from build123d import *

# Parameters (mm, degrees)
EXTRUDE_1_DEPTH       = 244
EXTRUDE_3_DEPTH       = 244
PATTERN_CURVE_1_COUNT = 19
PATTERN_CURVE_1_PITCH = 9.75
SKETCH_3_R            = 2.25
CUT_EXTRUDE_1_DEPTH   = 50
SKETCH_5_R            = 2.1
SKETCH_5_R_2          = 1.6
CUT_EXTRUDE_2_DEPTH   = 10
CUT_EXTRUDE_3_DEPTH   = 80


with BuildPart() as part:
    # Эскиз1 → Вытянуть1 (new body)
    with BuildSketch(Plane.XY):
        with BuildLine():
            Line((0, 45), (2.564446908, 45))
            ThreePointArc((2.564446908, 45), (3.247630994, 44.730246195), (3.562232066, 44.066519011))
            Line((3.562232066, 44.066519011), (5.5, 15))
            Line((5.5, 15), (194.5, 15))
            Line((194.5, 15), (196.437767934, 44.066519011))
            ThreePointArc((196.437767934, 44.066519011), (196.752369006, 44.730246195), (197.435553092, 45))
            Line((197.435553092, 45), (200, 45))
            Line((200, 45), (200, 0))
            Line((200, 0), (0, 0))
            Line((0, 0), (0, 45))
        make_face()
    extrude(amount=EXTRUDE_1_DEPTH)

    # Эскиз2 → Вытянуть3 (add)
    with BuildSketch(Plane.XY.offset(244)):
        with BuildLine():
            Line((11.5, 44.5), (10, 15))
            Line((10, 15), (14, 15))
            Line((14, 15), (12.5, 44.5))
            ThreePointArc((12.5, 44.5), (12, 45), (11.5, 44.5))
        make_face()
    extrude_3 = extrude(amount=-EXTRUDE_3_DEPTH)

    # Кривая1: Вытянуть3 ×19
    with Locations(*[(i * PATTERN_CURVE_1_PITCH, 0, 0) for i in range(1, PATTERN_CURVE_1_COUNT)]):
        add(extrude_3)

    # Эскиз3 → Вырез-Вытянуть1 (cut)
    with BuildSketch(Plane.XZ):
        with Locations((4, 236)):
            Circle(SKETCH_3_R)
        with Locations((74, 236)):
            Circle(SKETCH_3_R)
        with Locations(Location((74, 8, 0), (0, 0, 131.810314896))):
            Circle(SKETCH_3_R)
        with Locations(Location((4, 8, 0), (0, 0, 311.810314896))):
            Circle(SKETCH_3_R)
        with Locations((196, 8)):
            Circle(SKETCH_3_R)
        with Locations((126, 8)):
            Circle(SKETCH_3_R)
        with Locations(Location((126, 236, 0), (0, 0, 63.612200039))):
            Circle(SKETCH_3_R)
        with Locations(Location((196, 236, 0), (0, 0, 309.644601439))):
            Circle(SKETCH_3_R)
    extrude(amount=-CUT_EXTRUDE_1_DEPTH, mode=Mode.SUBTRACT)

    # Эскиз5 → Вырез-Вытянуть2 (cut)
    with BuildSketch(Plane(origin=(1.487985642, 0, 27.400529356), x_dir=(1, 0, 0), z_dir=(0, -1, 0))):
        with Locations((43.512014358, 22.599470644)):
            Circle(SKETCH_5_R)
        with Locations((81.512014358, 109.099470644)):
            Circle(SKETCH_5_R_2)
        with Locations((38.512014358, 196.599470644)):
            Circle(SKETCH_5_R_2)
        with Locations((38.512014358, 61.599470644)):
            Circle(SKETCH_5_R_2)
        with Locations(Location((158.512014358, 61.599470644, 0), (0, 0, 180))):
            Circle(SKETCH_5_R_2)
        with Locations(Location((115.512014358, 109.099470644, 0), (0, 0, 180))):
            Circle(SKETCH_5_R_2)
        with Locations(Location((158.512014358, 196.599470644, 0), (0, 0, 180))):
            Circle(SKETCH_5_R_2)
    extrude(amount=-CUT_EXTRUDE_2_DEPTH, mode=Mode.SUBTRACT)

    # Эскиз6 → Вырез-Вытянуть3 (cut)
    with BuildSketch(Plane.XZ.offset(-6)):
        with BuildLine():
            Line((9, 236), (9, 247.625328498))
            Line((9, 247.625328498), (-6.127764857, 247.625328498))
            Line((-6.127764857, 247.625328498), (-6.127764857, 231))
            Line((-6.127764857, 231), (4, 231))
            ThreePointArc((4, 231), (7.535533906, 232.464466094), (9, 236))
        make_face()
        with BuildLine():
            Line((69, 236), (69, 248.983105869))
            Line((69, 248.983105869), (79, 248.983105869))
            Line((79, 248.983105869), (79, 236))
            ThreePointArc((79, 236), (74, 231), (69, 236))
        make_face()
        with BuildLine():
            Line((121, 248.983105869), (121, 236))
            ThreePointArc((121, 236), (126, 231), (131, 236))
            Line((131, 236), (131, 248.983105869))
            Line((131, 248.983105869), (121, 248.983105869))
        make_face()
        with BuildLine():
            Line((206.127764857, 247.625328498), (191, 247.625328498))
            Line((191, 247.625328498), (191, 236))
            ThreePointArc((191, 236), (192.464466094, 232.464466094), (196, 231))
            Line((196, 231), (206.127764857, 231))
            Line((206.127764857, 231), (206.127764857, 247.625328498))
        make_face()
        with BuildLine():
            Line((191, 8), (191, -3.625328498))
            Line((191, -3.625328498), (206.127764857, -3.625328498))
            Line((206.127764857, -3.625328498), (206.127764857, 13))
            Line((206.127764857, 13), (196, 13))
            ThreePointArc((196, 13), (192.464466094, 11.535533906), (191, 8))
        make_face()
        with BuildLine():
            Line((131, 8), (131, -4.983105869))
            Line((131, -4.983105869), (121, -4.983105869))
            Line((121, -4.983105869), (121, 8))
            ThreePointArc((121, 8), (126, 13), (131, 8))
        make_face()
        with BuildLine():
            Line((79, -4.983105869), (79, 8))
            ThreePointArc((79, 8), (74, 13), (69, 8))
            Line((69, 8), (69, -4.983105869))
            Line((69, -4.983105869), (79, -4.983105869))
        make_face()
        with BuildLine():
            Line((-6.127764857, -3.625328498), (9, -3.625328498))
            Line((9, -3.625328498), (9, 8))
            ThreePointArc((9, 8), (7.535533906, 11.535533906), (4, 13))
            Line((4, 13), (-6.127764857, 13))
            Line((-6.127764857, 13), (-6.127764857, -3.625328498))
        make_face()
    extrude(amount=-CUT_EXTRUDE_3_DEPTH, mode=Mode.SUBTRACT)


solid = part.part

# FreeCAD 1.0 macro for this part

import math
import FreeCAD as App
import Part
import Sketcher

V = App.Vector

doc = App.newDocument("Part")
body = doc.addObject("PartDesign::Body", "Body")

# Sketch on XY plane
sketch1 = doc.addObject("Sketcher::SketchObject", "Sketch")
body.addObject(sketch1)
sketch1.AttachmentSupport = (doc.XY_Plane, [""])
sketch1.MapMode = "FlatFace"
sketch1.addGeometry([
    Part.LineSegment(V(2.6, 45, 0), V(0, 45, 0)),  # 0
    Part.LineSegment(V(0, 45, 0), V(0, 0, 0)),  # 1
    Part.LineSegment(V(0, 0, 0), V(200, 0, 0)),  # 2
    Part.LineSegment(V(200, 0, 0), V(200, 45, 0)),  # 3
    Part.LineSegment(V(200, 45, 0), V(197.4, 45, 0)),  # 4
    Part.ArcOfCircle(Part.Circle(V(197.4, 44, 0), V(0, 0, 1), 1), math.radians(90), math.radians(176)),  # 5
    Part.LineSegment(V(196.4, 44.1, 0), V(194.5, 15, 0)),  # 6
    Part.LineSegment(V(194.5, 15, 0), V(5.5, 15, 0)),  # 7
    Part.LineSegment(V(5.5, 15, 0), V(3.6, 44.1, 0)),  # 8
    Part.ArcOfCircle(Part.Circle(V(2.6, 44, 0), V(0, 0, 1), 1), math.radians(4), math.radians(90)),  # 9
], False)
sketch1.addConstraint([
    Sketcher.Constraint("Coincident", 0, 2, 1, 1),
    Sketcher.Constraint("Coincident", 1, 2, 2, 1),
    Sketcher.Constraint("Coincident", 2, 2, 3, 1),
    Sketcher.Constraint("Coincident", 3, 2, 4, 1),
    Sketcher.Constraint("Tangent", 4, 2, 5, 1),
    Sketcher.Constraint("Tangent", 5, 2, 6, 1),
    Sketcher.Constraint("Coincident", 6, 2, 7, 1),
    Sketcher.Constraint("Coincident", 7, 2, 8, 1),
    Sketcher.Constraint("Tangent", 8, 2, 9, 1),
    Sketcher.Constraint("Tangent", 9, 2, 0, 1),
    Sketcher.Constraint("Horizontal", 0),
    Sketcher.Constraint("Vertical", 1),
    Sketcher.Constraint("Horizontal", 2),
    Sketcher.Constraint("Vertical", 3),
    Sketcher.Constraint("Horizontal", 4),
    Sketcher.Constraint("Horizontal", 7),
    Sketcher.Constraint("Coincident", 1, 2, -1, 1),
    Sketcher.Constraint("Equal", 5, 9),
    Sketcher.Constraint("Horizontal", 5, 3, 9, 3),
    Sketcher.Constraint("Horizontal", 5, 2, 8, 2),
    Sketcher.Constraint("Equal", 0, 4),
    Sketcher.Constraint("Radius", 5, 1.0),
    Sketcher.Constraint("DistanceX", 2, 1, 2, 2, 200.0),
    Sketcher.Constraint("DistanceX", 7, 2, 7, 1, 189.0),
    Sketcher.Constraint("DistanceY", 1, 2, 1, 1, 45.0),
    Sketcher.Constraint("DistanceY", -1, 1, 6, 2, 15.0),
    Sketcher.Constraint("Distance", 6, 29.13104),
])
pad1 = doc.addObject("PartDesign::Pad", "Pad")
body.addObject(pad1)
pad1.Profile = sketch1
pad1.Length = 244

# Sketch on XY plane
sketch2 = doc.addObject("Sketcher::SketchObject", "Sketch001")
body.addObject(sketch2)
sketch2.AttachmentSupport = (doc.XY_Plane, [""])
sketch2.MapMode = "FlatFace"
sketch2.AttachmentOffset = App.Placement(V(0, 0, 244), App.Rotation())
sketch2.addGeometry([
    Part.LineSegment(V(11.5, 44.5, 0), V(10, 15, 0)),
    Part.LineSegment(V(10, 15, 0), V(14, 15, 0)),
    Part.LineSegment(V(14, 15, 0), V(12.5, 44.5, 0)),
    Part.ArcOfCircle(Part.Circle(V(12, 44.5, 0), V(0, 0, 1), 0.5), math.radians(0), math.radians(180)),
], False)
sketch2.addConstraint([
    Sketcher.Constraint("Coincident", 0, 2, 1, 1),
    Sketcher.Constraint("Coincident", 1, 2, 2, 1),
    Sketcher.Constraint("Coincident", 2, 2, 3, 1),
    Sketcher.Constraint("Coincident", 3, 2, 0, 1),
    Sketcher.Constraint("Horizontal", 1),
    Sketcher.Constraint("Horizontal", 3, 3, 2, 2),
    Sketcher.Constraint("Horizontal", 2, 2, 3, 2),
    Sketcher.Constraint("Equal", 0, 2),
    Sketcher.Constraint("Radius", 3, 0.5),
    Sketcher.Constraint("DistanceX", 1, 1, 1, 2, 4.0),
    Sketcher.Constraint("DistanceX", -1, 1, 3, 3, 12.0),
    Sketcher.Constraint("DistanceY", -1, 1, 0, 2, 15.0),
    Sketcher.Constraint("DistanceY", -1, 1, 3, 3, 44.5),
])
pad2 = doc.addObject("PartDesign::Pad", "Pad001")
body.addObject(pad2)
pad2.Profile = sketch2
pad2.Length = 244
pad2.Reversed = True
doc.recompute()

linearpattern = doc.addObject("PartDesign::LinearPattern", "LinearPattern")
body.addObject(linearpattern)
linearpattern.Originals = [pad2]
linearpattern.Direction = (doc.X_Axis, [""])
linearpattern.Mode = "offset"
linearpattern.Offset = 9.75
linearpattern.Occurrences = 19
body.Tip = linearpattern

# Sketch on XZ plane
sketch3 = doc.addObject("Sketcher::SketchObject", "Sketch002")
body.addObject(sketch3)
sketch3.AttachmentSupport = (doc.XZ_Plane, [""])
sketch3.MapMode = "FlatFace"
sketch3.addGeometry([
    Part.Circle(V(4, 236, 0), V(0, 0, 1), 2.2),  # 0
    Part.Circle(V(74, 236, 0), V(0, 0, 1), 2.2),  # 1
    Part.Circle(V(74, 8, 0), V(0, 0, 1), 2.2),  # 2
    Part.Circle(V(4, 8, 0), V(0, 0, 1), 2.2),  # 3
    Part.Circle(V(196, 8, 0), V(0, 0, 1), 2.2),  # 4
    Part.Circle(V(126, 8, 0), V(0, 0, 1), 2.2),  # 5
    Part.Circle(V(126, 236, 0), V(0, 0, 1), 2.2),  # 6
    Part.Circle(V(196, 236, 0), V(0, 0, 1), 2.2),  # 7
], False)
sketch3.addConstraint([
    Sketcher.Constraint("Equal", 0, 1),
    Sketcher.Constraint("Equal", 1, 2),
    Sketcher.Constraint("Equal", 2, 3),
    Sketcher.Constraint("Equal", 3, 4),
    Sketcher.Constraint("Equal", 4, 5),
    Sketcher.Constraint("Equal", 5, 6),
    Sketcher.Constraint("Equal", 6, 7),
    Sketcher.Constraint("Horizontal", 0, 3, 1, 3),
    Sketcher.Constraint("Horizontal", 2, 3, 3, 3),
    Sketcher.Constraint("Horizontal", 3, 3, 4, 3),
    Sketcher.Constraint("Horizontal", 4, 3, 5, 3),
    Sketcher.Constraint("Horizontal", 1, 3, 6, 3),
    Sketcher.Constraint("Horizontal", 6, 3, 7, 3),
    Sketcher.Constraint("Vertical", 1, 3, 2, 3),
    Sketcher.Constraint("Vertical", 0, 3, 3, 3),
    Sketcher.Constraint("Vertical", 5, 3, 6, 3),
    Sketcher.Constraint("Vertical", 4, 3, 7, 3),
    Sketcher.Constraint("Diameter", 0, 4.5),
    Sketcher.Constraint("DistanceX", -1, 1, 0, 3, 4.0),
    Sketcher.Constraint("DistanceY", -1, 1, 0, 3, 236.0),
    Sketcher.Constraint("DistanceX", -1, 1, 1, 3, 74.0),
    Sketcher.Constraint("DistanceY", -1, 1, 2, 3, 8.0),
    Sketcher.Constraint("DistanceX", -1, 1, 4, 3, 196.0),
    Sketcher.Constraint("DistanceX", -1, 1, 5, 3, 126.0),
])
pocket1 = doc.addObject("PartDesign::Pocket", "Pocket")
body.addObject(pocket1)
pocket1.Profile = sketch3
pocket1.Length = 50

# Sketch on XZ plane
sketch4 = doc.addObject("Sketcher::SketchObject", "Sketch003")
body.addObject(sketch4)
sketch4.AttachmentSupport = (doc.XZ_Plane, [""])
sketch4.MapMode = "FlatFace"
sketch4.addGeometry([
    Part.Circle(V(45, 50, 0), V(0, 0, 1), 2.1),  # 0
    Part.Circle(V(83, 136.5, 0), V(0, 0, 1), 1.6),  # 1
    Part.Circle(V(40, 224, 0), V(0, 0, 1), 1.6),  # 2
    Part.Circle(V(40, 89, 0), V(0, 0, 1), 1.6),  # 3
    Part.Circle(V(160, 89, 0), V(0, 0, 1), 1.6),  # 4
    Part.Circle(V(117, 136.5, 0), V(0, 0, 1), 1.6),  # 5
    Part.Circle(V(160, 224, 0), V(0, 0, 1), 1.6),  # 6
], False)
sketch4.addConstraint([
    Sketcher.Constraint("Equal", 1, 2),
    Sketcher.Constraint("Equal", 2, 3),
    Sketcher.Constraint("Equal", 3, 4),
    Sketcher.Constraint("Equal", 4, 5),
    Sketcher.Constraint("Equal", 5, 6),
    Sketcher.Constraint("Horizontal", 3, 3, 4, 3),
    Sketcher.Constraint("Horizontal", 1, 3, 5, 3),
    Sketcher.Constraint("Horizontal", 2, 3, 6, 3),
    Sketcher.Constraint("Vertical", 2, 3, 3, 3),
    Sketcher.Constraint("Vertical", 4, 3, 6, 3),
    Sketcher.Constraint("Diameter", 0, 4.2),
    Sketcher.Constraint("Diameter", 1, 3.2),
    Sketcher.Constraint("DistanceX", -1, 1, 0, 3, 45.0),
    Sketcher.Constraint("DistanceY", -1, 1, 0, 3, 50.0),
    Sketcher.Constraint("DistanceX", -1, 1, 1, 3, 83.0),
    Sketcher.Constraint("DistanceX", -1, 1, 2, 3, 40.0),
    Sketcher.Constraint("DistanceY", -1, 1, 2, 3, 224.0),
    Sketcher.Constraint("DistanceY", -1, 1, 3, 3, 89.0),
    Sketcher.Constraint("DistanceX", -1, 1, 4, 3, 160.0),
    Sketcher.Constraint("DistanceX", -1, 1, 5, 3, 117.0),
    Sketcher.Constraint("DistanceY", -1, 1, 1, 3, 136.5),
])
pocket2 = doc.addObject("PartDesign::Pocket", "Pocket001")
body.addObject(pocket2)
pocket2.Profile = sketch4
pocket2.Length = 10

# Sketch on XZ plane
sketch5 = doc.addObject("Sketcher::SketchObject", "Sketch004")
body.addObject(sketch5)
sketch5.AttachmentSupport = (doc.XZ_Plane, [""])
sketch5.MapMode = "FlatFace"
sketch5.AttachmentOffset = App.Placement(V(0, 0, -6), App.Rotation())
sketch5.addGeometry([
    Part.LineSegment(V(9, 236, 0), V(9, 248, 0)),  # 0
    Part.LineSegment(V(9, 248, 0), V(-6, 248, 0)),  # 1
    Part.LineSegment(V(-6, 248, 0), V(-6, 231, 0)),  # 2
    Part.LineSegment(V(-6, 231, 0), V(4, 231, 0)),  # 3
    Part.ArcOfCircle(Part.Circle(V(4, 236, 0), V(0, 0, 1), 5), math.radians(-90), math.radians(0)),  # 4
    Part.LineSegment(V(69, 249, 0), V(69, 236, 0)),  # 5
    Part.ArcOfCircle(Part.Circle(V(74, 236, 0), V(0, 0, 1), 5), math.radians(180), math.radians(360)),  # 6
    Part.LineSegment(V(79, 236, 0), V(79, 249, 0)),  # 7
    Part.LineSegment(V(79, 249, 0), V(69, 249, 0)),  # 8
    Part.LineSegment(V(121, 249, 0), V(121, 236, 0)),  # 9
    Part.ArcOfCircle(Part.Circle(V(126, 236, 0), V(0, 0, 1), 5), math.radians(180), math.radians(360)),  # 10
    Part.LineSegment(V(131, 236, 0), V(131, 249, 0)),  # 11
    Part.LineSegment(V(131, 249, 0), V(121, 249, 0)),  # 12
    Part.LineSegment(V(206, 248, 0), V(191, 248, 0)),  # 13
    Part.LineSegment(V(191, 248, 0), V(191, 236, 0)),  # 14
    Part.ArcOfCircle(Part.Circle(V(196, 236, 0), V(0, 0, 1), 5), math.radians(180), math.radians(270)),  # 15
    Part.LineSegment(V(196, 231, 0), V(206, 231, 0)),  # 16
    Part.LineSegment(V(206, 231, 0), V(206, 248, 0)),  # 17
    Part.LineSegment(V(191, 8, 0), V(191, -4, 0)),  # 18
    Part.LineSegment(V(191, -4, 0), V(206, -4, 0)),  # 19
    Part.LineSegment(V(206, -4, 0), V(206, 13, 0)),  # 20
    Part.LineSegment(V(206, 13, 0), V(196, 13, 0)),  # 21
    Part.ArcOfCircle(Part.Circle(V(196, 8, 0), V(0, 0, 1), 5), math.radians(90), math.radians(180)),  # 22
    Part.LineSegment(V(131, -5, 0), V(131, 8, 0)),  # 23
    Part.ArcOfCircle(Part.Circle(V(126, 8, 0), V(0, 0, 1), 5), math.radians(0), math.radians(180)),  # 24
    Part.LineSegment(V(121, 8, 0), V(121, -5, 0)),  # 25
    Part.LineSegment(V(121, -5, 0), V(131, -5, 0)),  # 26
    Part.LineSegment(V(79, -5, 0), V(79, 8, 0)),  # 27
    Part.ArcOfCircle(Part.Circle(V(74, 8, 0), V(0, 0, 1), 5), math.radians(0), math.radians(180)),  # 28
    Part.LineSegment(V(69, 8, 0), V(69, -5, 0)),  # 29
    Part.LineSegment(V(69, -5, 0), V(79, -5, 0)),  # 30
    Part.LineSegment(V(-6, -4, 0), V(9, -4, 0)),  # 31
    Part.LineSegment(V(9, -4, 0), V(9, 8, 0)),  # 32
    Part.ArcOfCircle(Part.Circle(V(4, 8, 0), V(0, 0, 1), 5), math.radians(0), math.radians(90)),  # 33
    Part.LineSegment(V(4, 13, 0), V(-6, 13, 0)),  # 34
    Part.LineSegment(V(-6, 13, 0), V(-6, -4, 0)),  # 35
], False)
sketch5.addConstraint([
    Sketcher.Constraint("Coincident", 0, 2, 1, 1),
    Sketcher.Constraint("Coincident", 1, 2, 2, 1),
    Sketcher.Constraint("Coincident", 2, 2, 3, 1),
    Sketcher.Constraint("Tangent", 3, 2, 4, 1),
    Sketcher.Constraint("Tangent", 4, 2, 0, 1),
    Sketcher.Constraint("Tangent", 5, 2, 6, 1),
    Sketcher.Constraint("Tangent", 6, 2, 7, 1),
    Sketcher.Constraint("Coincident", 7, 2, 8, 1),
    Sketcher.Constraint("Coincident", 8, 2, 5, 1),
    Sketcher.Constraint("Tangent", 9, 2, 10, 1),
    Sketcher.Constraint("Tangent", 10, 2, 11, 1),
    Sketcher.Constraint("Coincident", 11, 2, 12, 1),
    Sketcher.Constraint("Coincident", 12, 2, 9, 1),
    Sketcher.Constraint("Coincident", 13, 2, 14, 1),
    Sketcher.Constraint("Tangent", 14, 2, 15, 1),
    Sketcher.Constraint("Tangent", 15, 2, 16, 1),
    Sketcher.Constraint("Coincident", 16, 2, 17, 1),
    Sketcher.Constraint("Coincident", 17, 2, 13, 1),
    Sketcher.Constraint("Coincident", 18, 2, 19, 1),
    Sketcher.Constraint("Coincident", 19, 2, 20, 1),
    Sketcher.Constraint("Coincident", 20, 2, 21, 1),
    Sketcher.Constraint("Tangent", 21, 2, 22, 1),
    Sketcher.Constraint("Tangent", 22, 2, 18, 1),
    Sketcher.Constraint("Tangent", 23, 2, 24, 1),
    Sketcher.Constraint("Tangent", 24, 2, 25, 1),
    Sketcher.Constraint("Coincident", 25, 2, 26, 1),
    Sketcher.Constraint("Coincident", 26, 2, 23, 1),
    Sketcher.Constraint("Tangent", 27, 2, 28, 1),
    Sketcher.Constraint("Tangent", 28, 2, 29, 1),
    Sketcher.Constraint("Coincident", 29, 2, 30, 1),
    Sketcher.Constraint("Coincident", 30, 2, 27, 1),
    Sketcher.Constraint("Coincident", 31, 2, 32, 1),
    Sketcher.Constraint("Tangent", 32, 2, 33, 1),
    Sketcher.Constraint("Tangent", 33, 2, 34, 1),
    Sketcher.Constraint("Coincident", 34, 2, 35, 1),
    Sketcher.Constraint("Coincident", 35, 2, 31, 1),
    Sketcher.Constraint("Vertical", 0),
    Sketcher.Constraint("Horizontal", 1),
    Sketcher.Constraint("Vertical", 2),
    Sketcher.Constraint("Horizontal", 3),
    Sketcher.Constraint("Vertical", 5),
    Sketcher.Constraint("Vertical", 7),
    Sketcher.Constraint("Horizontal", 8),
    Sketcher.Constraint("Vertical", 9),
    Sketcher.Constraint("Vertical", 11),
    Sketcher.Constraint("Horizontal", 12),
    Sketcher.Constraint("Horizontal", 13),
    Sketcher.Constraint("Vertical", 14),
    Sketcher.Constraint("Horizontal", 16),
    Sketcher.Constraint("Vertical", 17),
    Sketcher.Constraint("Vertical", 18),
    Sketcher.Constraint("Horizontal", 19),
    Sketcher.Constraint("Vertical", 20),
    Sketcher.Constraint("Horizontal", 21),
    Sketcher.Constraint("Vertical", 23),
    Sketcher.Constraint("Vertical", 25),
    Sketcher.Constraint("Horizontal", 26),
    Sketcher.Constraint("Vertical", 27),
    Sketcher.Constraint("Vertical", 29),
    Sketcher.Constraint("Horizontal", 30),
    Sketcher.Constraint("Horizontal", 31),
    Sketcher.Constraint("Vertical", 32),
    Sketcher.Constraint("Horizontal", 34),
    Sketcher.Constraint("Vertical", 35),
    Sketcher.Constraint("Equal", 4, 6),
    Sketcher.Constraint("Equal", 6, 10),
    Sketcher.Constraint("Equal", 10, 15),
    Sketcher.Constraint("Equal", 15, 22),
    Sketcher.Constraint("Equal", 22, 24),
    Sketcher.Constraint("Equal", 24, 28),
    Sketcher.Constraint("Equal", 28, 33),
    Sketcher.Constraint("Horizontal", 4, 3, 6, 3),
    Sketcher.Constraint("Horizontal", 6, 3, 10, 3),
    Sketcher.Constraint("Horizontal", 10, 3, 15, 3),
    Sketcher.Constraint("Horizontal", 22, 3, 24, 3),
    Sketcher.Constraint("Horizontal", 24, 3, 28, 3),
    Sketcher.Constraint("Horizontal", 28, 3, 33, 3),
    Sketcher.Constraint("Horizontal", 8, 2, 11, 2),
    Sketcher.Constraint("Horizontal", 1, 2, 13, 2),
    Sketcher.Constraint("Horizontal", 26, 2, 29, 2),
    Sketcher.Constraint("Horizontal", 19, 2, 31, 2),
    Sketcher.Constraint("Vertical", 15, 3, 22, 3),
    Sketcher.Constraint("Vertical", 10, 3, 24, 3),
    Sketcher.Constraint("Vertical", 6, 3, 28, 3),
    Sketcher.Constraint("Vertical", 4, 3, 33, 3),
    Sketcher.Constraint("Vertical", 17, 2, 19, 2),
    Sketcher.Constraint("Vertical", 2, 2, 34, 2),
    Sketcher.Constraint("Equal", 1, 13),
    Sketcher.Constraint("Equal", 14, 18),
    Sketcher.Constraint("Equal", 11, 23),
    Sketcher.Constraint("Radius", 4, 5.0),
    Sketcher.Constraint("DistanceX", -1, 1, 4, 3, 4.0),
    Sketcher.Constraint("DistanceY", -1, 1, 4, 3, 236.0),
    Sketcher.Constraint("DistanceX", -1, 1, 6, 3, 74.0),
    Sketcher.Constraint("DistanceX", -1, 1, 10, 3, 126.0),
    Sketcher.Constraint("DistanceX", -1, 1, 15, 3, 196.0),
    Sketcher.Constraint("DistanceY", -1, 1, 22, 3, 8.0),
    Sketcher.Constraint("DistanceY", 0, 1, 0, 2, 11.625328),
    Sketcher.Constraint("DistanceX", 1, 2, 1, 1, 15.127765),
    Sketcher.Constraint("DistanceY", 5, 2, 5, 1, 12.983106),
])
pocket3 = doc.addObject("PartDesign::Pocket", "Pocket002")
body.addObject(pocket3)
pocket3.Profile = sketch5
pocket3.Length = 80

doc.recompute()
